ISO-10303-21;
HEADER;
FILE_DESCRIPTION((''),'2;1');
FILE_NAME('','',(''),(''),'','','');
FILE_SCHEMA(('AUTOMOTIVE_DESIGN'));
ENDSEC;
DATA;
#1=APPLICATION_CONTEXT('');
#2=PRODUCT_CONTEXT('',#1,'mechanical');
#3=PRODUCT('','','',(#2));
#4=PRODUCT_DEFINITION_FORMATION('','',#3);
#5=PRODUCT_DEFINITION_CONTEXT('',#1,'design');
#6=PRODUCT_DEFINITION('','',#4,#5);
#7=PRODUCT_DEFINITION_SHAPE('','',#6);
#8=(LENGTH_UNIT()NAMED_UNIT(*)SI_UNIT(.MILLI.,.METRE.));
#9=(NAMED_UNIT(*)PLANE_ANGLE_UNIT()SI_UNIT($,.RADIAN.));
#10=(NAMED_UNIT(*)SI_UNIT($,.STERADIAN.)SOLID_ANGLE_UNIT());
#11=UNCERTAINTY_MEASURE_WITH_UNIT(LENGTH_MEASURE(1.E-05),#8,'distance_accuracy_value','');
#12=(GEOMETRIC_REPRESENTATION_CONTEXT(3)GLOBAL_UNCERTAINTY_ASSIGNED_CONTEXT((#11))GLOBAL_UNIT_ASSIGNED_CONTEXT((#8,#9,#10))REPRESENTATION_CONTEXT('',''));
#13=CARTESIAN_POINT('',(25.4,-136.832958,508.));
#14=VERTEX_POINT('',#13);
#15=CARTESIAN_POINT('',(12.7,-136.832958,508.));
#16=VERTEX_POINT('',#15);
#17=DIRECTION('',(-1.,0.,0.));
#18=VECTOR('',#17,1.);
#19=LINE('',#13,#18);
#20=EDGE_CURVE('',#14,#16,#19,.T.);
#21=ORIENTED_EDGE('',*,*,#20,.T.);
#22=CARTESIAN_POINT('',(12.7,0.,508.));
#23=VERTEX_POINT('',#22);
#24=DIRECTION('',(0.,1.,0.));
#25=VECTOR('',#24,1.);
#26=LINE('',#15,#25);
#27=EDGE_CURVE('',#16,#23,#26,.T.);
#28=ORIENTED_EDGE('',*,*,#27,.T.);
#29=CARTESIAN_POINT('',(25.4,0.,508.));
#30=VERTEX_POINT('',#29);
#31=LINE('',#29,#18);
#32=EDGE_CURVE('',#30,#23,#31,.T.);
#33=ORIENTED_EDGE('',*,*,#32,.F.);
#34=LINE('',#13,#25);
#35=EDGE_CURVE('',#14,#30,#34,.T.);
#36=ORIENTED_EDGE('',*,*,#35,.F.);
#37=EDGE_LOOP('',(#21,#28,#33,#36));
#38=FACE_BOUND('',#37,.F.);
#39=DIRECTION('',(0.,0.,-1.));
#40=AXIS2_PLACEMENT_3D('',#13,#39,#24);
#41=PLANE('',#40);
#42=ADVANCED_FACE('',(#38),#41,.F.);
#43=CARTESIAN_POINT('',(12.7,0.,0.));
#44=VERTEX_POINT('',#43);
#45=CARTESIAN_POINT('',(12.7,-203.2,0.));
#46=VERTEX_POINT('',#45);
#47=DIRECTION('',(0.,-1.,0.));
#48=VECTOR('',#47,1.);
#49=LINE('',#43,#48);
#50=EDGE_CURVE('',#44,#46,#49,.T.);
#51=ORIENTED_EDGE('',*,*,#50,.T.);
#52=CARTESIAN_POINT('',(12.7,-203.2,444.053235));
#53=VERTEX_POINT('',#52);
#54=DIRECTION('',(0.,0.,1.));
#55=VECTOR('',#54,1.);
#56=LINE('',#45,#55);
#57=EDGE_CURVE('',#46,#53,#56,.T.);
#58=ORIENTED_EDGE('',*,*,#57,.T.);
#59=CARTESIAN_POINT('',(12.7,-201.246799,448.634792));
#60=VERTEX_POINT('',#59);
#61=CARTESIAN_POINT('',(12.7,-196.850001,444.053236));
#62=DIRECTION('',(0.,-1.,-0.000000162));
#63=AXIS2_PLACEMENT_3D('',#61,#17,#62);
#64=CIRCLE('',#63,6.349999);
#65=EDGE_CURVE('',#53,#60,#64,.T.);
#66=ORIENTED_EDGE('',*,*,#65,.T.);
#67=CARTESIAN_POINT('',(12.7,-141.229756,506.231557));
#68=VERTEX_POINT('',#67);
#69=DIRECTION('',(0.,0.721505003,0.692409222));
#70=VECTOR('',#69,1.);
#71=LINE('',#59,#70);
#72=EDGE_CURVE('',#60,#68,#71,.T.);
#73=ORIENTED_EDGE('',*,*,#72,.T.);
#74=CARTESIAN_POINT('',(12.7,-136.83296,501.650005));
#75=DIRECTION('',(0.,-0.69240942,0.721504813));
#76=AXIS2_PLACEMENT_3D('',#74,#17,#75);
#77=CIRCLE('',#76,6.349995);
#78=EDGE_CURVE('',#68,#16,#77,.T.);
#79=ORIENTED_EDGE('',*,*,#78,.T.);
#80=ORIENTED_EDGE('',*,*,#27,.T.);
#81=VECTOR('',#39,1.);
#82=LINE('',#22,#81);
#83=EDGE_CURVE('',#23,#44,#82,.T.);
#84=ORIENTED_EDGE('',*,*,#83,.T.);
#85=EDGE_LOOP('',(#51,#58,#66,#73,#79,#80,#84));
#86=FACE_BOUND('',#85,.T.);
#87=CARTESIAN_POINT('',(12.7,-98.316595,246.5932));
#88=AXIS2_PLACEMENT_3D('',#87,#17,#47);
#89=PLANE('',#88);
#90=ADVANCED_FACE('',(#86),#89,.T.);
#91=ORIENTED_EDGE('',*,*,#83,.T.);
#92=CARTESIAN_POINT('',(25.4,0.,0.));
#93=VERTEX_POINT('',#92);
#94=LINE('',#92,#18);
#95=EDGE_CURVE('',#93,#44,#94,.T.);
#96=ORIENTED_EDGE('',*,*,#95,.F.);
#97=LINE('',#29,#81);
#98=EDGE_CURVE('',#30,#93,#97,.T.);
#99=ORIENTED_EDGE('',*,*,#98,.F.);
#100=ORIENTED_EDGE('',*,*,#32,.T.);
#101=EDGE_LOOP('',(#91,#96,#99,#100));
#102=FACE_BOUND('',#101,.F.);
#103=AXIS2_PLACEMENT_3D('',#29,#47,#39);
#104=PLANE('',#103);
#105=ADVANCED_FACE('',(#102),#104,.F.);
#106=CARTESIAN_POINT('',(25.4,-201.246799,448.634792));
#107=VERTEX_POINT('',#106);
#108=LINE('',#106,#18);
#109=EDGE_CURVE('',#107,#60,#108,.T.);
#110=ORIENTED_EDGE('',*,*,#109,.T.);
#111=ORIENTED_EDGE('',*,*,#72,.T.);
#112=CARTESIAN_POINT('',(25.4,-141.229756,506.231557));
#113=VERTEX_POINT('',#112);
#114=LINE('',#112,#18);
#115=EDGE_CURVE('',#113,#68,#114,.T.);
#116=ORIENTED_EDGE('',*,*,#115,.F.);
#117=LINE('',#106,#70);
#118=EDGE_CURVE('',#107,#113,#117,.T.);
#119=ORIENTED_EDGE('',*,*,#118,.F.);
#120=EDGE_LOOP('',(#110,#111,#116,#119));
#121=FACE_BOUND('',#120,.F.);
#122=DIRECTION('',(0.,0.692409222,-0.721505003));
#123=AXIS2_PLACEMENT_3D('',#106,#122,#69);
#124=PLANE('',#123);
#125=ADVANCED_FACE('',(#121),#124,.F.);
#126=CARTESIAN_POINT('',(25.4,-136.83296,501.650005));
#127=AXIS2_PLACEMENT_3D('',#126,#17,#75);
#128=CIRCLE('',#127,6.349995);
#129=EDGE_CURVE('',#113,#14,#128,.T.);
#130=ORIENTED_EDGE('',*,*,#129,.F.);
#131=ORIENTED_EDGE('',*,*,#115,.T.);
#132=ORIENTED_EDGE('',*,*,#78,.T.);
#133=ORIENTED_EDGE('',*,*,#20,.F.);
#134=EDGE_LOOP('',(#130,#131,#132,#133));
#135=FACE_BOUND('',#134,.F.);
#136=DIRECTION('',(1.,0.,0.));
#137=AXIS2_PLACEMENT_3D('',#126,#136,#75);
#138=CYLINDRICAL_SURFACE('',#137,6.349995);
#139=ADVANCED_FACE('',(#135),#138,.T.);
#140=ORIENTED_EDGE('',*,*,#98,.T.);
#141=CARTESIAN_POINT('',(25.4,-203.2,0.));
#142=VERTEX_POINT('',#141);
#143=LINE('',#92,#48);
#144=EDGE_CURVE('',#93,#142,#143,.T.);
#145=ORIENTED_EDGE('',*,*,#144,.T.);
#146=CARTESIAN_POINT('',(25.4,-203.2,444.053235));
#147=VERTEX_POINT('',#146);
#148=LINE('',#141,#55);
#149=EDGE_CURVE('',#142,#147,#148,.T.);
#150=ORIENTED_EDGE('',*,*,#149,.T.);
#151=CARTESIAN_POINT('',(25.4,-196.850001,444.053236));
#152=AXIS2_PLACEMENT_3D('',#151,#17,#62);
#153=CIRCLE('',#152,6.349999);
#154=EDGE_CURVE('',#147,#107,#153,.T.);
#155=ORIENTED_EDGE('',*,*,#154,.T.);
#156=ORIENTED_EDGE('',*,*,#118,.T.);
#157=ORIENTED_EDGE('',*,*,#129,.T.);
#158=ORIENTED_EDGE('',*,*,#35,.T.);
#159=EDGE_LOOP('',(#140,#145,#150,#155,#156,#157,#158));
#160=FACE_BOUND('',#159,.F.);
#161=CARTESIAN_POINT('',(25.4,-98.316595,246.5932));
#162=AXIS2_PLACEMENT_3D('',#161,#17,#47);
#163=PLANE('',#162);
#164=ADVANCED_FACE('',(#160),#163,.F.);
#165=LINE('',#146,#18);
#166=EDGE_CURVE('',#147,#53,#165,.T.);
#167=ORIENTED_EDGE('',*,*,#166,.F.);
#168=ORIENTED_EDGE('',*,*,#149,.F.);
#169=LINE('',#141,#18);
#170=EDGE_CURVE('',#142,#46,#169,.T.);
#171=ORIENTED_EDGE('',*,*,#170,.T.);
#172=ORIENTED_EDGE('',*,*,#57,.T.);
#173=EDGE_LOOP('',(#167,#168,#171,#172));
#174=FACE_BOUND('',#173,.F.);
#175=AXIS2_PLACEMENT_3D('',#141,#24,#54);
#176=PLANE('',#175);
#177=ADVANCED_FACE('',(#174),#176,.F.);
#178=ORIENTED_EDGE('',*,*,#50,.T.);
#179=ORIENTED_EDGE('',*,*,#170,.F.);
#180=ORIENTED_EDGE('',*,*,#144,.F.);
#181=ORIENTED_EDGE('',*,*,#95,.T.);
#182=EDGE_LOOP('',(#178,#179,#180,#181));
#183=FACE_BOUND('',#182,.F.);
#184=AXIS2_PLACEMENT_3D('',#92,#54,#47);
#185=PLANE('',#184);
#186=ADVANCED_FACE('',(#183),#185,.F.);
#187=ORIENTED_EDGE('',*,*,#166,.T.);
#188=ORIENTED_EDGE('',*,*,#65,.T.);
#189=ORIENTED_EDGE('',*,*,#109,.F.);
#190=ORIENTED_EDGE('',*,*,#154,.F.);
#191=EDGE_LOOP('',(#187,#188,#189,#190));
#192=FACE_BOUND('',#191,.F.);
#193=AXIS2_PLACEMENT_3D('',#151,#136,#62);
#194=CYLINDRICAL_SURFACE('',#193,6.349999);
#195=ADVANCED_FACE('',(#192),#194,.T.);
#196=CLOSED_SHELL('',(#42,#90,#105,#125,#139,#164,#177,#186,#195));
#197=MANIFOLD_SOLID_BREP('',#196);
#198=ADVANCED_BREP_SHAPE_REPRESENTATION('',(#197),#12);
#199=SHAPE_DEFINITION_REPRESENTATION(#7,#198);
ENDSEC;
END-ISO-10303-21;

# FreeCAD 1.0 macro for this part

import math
import FreeCAD as App
import Part
import Sketcher
Q = App.Units.Quantity

doc = App.newDocument("Part")
body = doc.addObject("PartDesign::Body", "Body")

sketch1 = body.newObject("Sketcher::SketchObject", "Sketch")
sketch1.AttachmentSupport = (doc.getObject("YZ_Plane"), [""])
sketch1.MapMode = "FlatFace"
sketch1.addGeometry(Part.LineSegment(App.Vector(0, 508, 0), App.Vector(0, 0, 0)), False)
sketch1.addGeometry(Part.LineSegment(App.Vector(0, 0, 0), App.Vector(203.2, 0, 0)), False)
sketch1.addGeometry(Part.LineSegment(App.Vector(203.2, 0, 0), App.Vector(203.2, 444.1, 0)), False)
sketch1.addGeometry(Part.ArcOfCircle(Part.Circle(App.Vector(196.9, 444.1, 0), App.Vector(0, 0, 1), 6.3), math.radians(0), math.radians(46)), False)
sketch1.addGeometry(Part.LineSegment(App.Vector(201.2, 448.6, 0), App.Vector(141.2, 506.2, 0)), False)
sketch1.addGeometry(Part.ArcOfCircle(Part.Circle(App.Vector(136.8, 501.7, 0), App.Vector(0, 0, 1), 6.3), math.radians(46), math.radians(90)), False)
sketch1.addGeometry(Part.LineSegment(App.Vector(136.8, 508, 0), App.Vector(0, 508, 0)), False)
sketch1.addConstraint(Sketcher.Constraint("Coincident", 0, 2, 1, 1))
sketch1.addConstraint(Sketcher.Constraint("Coincident", 1, 2, 2, 1))
sketch1.addConstraint(Sketcher.Constraint("Tangent", 2, 2, 3, 1))
sketch1.addConstraint(Sketcher.Constraint("Tangent", 3, 2, 4, 1))
sketch1.addConstraint(Sketcher.Constraint("Tangent", 4, 2, 5, 1))
sketch1.addConstraint(Sketcher.Constraint("Tangent", 5, 2, 6, 1))
sketch1.addConstraint(Sketcher.Constraint("Coincident", 6, 2, 0, 1))
sketch1.addConstraint(Sketcher.Constraint("Vertical", 0))
sketch1.addConstraint(Sketcher.Constraint("Horizontal", 1))
sketch1.addConstraint(Sketcher.Constraint("Vertical", 2))
sketch1.addConstraint(Sketcher.Constraint("Horizontal", 6))
sketch1.addConstraint(Sketcher.Constraint("Coincident", 0, 2, -1, 1))
sketch1.addConstraint(Sketcher.Constraint("DistanceX", 1, 1, 1, 2, Q("8 in")))
sketch1.addConstraint(Sketcher.Constraint("DistanceY", 0, 2, 0, 1, Q("20 in")))
sketch1.addConstraint(Sketcher.Constraint("Radius", 3, Q("0.25 in")))
sketch1.addConstraint(Sketcher.Constraint("Radius", 5, Q("6.349995 mm")))
sketch1.addConstraint(Sketcher.Constraint("DistanceX", -1, 1, 3, 2, Q("201.246799 mm")))
sketch1.addConstraint(Sketcher.Constraint("Distance", 4, Q("83.183128 mm")))
pad1 = body.newObject("PartDesign::Pad", "Pad")
pad1.Profile = sketch1
pad1.Length = Q("0.5 in")
body2 = doc.addObject("PartDesign::Body", "Body001")
doc.recompute()

body.Placement = App.Placement(App.Vector(25.4, 0, 0), App.Rotation(App.Vector(0, 0, -1), 180))
boolean = body2.newObject("PartDesign::Boolean", "Boolean")
boolean.Type = "Fuse"
boolean.addObjects([body])

doc.recompute()
